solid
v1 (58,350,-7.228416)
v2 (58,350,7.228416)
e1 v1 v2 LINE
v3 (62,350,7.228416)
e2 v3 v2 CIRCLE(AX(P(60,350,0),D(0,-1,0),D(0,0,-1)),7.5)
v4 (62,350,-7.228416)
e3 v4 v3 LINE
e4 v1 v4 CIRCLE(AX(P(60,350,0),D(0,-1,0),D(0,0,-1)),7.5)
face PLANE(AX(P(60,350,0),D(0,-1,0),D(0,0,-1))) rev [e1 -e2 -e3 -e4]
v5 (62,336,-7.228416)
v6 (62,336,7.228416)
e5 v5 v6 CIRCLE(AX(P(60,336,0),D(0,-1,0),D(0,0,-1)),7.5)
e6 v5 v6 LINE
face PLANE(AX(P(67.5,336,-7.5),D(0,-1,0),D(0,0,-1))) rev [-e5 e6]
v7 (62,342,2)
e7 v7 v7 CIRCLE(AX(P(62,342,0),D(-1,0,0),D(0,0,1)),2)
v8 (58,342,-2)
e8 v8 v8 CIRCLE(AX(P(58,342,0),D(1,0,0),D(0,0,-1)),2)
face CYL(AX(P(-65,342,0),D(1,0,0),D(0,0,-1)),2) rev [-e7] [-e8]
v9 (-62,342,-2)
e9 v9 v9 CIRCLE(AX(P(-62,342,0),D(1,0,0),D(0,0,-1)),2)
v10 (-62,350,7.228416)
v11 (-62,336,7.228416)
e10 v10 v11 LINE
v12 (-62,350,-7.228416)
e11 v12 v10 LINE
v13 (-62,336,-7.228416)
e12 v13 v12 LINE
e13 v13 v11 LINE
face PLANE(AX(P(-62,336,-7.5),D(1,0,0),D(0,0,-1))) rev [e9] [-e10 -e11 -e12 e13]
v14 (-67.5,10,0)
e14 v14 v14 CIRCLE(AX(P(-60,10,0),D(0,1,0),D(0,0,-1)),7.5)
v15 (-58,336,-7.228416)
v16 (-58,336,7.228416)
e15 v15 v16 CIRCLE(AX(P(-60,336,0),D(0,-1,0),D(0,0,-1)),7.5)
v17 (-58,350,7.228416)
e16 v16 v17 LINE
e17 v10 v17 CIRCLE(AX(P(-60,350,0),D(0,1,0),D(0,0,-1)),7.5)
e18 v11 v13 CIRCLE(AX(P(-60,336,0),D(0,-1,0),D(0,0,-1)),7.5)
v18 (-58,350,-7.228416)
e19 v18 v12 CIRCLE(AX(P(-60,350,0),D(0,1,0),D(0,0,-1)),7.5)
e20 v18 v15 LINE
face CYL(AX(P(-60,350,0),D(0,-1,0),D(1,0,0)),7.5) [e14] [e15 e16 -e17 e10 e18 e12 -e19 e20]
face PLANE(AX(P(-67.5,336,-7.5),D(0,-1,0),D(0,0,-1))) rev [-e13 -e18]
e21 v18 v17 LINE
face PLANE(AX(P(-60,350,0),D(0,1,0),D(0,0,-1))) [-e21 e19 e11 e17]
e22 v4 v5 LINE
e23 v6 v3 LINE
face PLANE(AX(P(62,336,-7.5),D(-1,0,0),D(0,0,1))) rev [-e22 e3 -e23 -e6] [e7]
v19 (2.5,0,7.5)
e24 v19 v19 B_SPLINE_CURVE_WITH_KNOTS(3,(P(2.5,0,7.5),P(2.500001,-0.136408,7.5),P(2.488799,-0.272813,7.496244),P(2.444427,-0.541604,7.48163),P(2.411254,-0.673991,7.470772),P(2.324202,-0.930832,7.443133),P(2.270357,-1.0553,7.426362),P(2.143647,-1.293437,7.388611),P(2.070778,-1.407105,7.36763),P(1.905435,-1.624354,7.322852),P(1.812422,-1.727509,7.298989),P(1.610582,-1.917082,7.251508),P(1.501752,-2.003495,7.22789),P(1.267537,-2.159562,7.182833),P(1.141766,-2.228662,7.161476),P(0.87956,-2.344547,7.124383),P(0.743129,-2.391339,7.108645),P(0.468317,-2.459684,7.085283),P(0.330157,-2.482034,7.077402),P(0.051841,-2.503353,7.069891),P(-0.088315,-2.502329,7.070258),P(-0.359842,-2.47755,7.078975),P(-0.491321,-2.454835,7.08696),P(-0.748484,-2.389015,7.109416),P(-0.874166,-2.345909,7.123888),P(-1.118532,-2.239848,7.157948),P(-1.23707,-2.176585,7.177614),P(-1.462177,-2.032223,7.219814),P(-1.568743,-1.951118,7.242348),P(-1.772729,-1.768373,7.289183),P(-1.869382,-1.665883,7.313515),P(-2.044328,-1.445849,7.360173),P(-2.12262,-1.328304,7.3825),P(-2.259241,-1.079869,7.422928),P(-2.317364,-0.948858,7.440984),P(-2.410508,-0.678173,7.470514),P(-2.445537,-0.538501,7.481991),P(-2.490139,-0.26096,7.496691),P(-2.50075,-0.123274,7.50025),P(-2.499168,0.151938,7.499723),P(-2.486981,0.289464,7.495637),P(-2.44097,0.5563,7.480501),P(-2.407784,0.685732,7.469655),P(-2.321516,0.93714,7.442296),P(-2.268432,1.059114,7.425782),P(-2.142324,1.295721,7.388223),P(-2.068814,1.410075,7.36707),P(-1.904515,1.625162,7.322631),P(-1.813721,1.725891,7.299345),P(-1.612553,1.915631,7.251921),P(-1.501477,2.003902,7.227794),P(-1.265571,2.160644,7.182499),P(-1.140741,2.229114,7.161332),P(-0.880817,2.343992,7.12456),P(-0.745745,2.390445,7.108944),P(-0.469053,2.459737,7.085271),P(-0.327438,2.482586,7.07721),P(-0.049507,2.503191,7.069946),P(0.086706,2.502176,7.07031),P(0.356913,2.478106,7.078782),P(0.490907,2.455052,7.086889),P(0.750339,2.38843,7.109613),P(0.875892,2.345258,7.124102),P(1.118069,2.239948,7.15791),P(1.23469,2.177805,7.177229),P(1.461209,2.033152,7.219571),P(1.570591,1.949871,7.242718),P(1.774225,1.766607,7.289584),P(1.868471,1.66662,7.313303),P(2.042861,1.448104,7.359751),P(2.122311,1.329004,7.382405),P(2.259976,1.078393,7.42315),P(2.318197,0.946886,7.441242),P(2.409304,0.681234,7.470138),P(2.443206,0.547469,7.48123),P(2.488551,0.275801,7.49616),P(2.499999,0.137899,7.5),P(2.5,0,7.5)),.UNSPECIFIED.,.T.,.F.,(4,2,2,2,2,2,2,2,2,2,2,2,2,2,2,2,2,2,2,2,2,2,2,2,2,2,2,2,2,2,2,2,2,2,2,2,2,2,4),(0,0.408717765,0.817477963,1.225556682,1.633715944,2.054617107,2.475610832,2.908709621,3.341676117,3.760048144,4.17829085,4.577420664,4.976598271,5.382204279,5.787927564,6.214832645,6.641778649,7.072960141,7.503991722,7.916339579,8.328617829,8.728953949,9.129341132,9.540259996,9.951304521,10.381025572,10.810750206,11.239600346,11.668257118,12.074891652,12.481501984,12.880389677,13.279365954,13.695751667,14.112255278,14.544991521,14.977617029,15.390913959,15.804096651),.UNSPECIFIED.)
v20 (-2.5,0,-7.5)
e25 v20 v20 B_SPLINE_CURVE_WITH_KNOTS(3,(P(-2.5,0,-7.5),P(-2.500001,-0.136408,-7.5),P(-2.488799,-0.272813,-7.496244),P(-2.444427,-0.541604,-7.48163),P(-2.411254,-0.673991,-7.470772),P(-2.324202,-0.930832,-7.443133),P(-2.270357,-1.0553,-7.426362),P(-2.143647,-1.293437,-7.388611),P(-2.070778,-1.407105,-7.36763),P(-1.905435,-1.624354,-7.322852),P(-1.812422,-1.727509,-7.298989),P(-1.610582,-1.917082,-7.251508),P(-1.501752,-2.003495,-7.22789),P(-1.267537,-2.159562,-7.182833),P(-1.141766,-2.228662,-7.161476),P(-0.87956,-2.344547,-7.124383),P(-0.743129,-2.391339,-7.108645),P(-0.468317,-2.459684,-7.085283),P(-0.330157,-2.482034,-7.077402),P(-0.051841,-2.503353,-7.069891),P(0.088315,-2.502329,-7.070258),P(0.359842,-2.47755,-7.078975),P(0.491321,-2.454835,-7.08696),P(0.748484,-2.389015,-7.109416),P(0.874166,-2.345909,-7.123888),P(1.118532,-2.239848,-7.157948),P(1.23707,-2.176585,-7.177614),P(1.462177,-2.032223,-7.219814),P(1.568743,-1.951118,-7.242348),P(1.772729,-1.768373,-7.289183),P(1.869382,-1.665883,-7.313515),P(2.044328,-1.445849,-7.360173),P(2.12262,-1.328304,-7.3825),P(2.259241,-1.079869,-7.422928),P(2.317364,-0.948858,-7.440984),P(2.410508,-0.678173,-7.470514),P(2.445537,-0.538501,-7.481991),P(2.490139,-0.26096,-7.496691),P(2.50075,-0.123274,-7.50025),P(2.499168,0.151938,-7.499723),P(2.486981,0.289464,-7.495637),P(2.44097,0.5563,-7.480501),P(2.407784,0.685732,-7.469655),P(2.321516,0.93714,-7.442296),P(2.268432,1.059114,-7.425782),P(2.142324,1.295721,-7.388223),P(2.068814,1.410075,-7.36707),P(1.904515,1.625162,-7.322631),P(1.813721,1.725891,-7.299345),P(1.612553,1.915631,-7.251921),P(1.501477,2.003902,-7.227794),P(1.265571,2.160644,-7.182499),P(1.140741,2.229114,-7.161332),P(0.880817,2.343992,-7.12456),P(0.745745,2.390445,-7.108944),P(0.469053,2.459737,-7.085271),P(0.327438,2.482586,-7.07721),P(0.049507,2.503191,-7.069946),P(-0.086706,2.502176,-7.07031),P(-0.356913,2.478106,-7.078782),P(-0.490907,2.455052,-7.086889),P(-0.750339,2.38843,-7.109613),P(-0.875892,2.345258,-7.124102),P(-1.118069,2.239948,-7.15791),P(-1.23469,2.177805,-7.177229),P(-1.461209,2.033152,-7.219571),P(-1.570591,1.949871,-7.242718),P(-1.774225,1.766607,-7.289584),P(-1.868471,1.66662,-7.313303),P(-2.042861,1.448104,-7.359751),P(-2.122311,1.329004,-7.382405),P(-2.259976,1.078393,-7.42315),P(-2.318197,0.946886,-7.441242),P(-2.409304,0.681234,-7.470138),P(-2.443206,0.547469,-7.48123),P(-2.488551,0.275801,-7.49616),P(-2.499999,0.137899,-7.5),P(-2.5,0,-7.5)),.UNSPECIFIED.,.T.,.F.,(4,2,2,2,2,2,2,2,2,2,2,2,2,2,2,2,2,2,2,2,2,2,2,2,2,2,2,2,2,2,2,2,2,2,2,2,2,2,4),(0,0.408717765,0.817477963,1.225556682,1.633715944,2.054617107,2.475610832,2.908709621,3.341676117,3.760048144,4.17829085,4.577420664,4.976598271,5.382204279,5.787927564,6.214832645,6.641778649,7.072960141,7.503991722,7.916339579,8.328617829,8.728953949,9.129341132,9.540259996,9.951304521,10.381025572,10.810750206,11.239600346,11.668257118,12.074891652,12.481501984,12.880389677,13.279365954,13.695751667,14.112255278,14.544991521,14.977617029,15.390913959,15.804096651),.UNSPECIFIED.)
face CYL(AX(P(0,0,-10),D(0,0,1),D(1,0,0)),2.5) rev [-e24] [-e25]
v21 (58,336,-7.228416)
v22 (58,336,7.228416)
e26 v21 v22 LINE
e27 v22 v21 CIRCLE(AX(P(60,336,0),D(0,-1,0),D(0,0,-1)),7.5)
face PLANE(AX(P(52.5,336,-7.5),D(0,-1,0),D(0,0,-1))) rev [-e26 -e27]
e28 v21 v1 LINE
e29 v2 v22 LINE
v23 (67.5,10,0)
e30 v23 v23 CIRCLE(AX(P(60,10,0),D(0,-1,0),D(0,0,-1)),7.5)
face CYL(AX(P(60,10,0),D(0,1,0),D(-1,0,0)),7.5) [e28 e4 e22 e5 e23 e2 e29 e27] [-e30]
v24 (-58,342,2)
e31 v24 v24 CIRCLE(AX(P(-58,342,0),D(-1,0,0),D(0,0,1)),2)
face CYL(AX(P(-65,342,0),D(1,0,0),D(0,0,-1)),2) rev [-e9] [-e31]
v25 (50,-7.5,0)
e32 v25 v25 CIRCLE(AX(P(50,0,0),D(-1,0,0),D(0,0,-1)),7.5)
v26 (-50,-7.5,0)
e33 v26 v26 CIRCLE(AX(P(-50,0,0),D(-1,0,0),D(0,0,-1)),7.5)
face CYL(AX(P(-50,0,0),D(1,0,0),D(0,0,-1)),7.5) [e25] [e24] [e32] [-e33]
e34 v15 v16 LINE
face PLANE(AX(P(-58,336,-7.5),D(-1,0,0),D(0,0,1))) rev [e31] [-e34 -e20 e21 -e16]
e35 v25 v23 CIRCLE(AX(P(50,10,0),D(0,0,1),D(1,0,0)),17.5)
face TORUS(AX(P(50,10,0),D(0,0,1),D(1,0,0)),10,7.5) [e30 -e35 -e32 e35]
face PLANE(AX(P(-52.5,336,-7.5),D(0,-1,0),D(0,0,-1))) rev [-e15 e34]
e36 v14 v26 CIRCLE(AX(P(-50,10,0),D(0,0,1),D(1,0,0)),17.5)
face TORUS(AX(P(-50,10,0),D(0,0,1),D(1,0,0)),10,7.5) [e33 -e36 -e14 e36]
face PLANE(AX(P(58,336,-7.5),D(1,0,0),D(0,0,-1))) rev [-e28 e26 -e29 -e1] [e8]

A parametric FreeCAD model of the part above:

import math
import FreeCAD as App
import Part
import Sketcher

V = App.Vector
Q = App.Units.Quantity


def add_polygon(sketch, points):
    """Adds a closed chain of lines whose ends are joined by coincident constraints."""
    first, n = sketch.GeometryCount, len(points)
    for a, b in zip(points, points[1:] + points[:1]):
        sketch.addGeometry(Part.LineSegment(App.Vector(*a, 0), App.Vector(*b, 0)), False)
    for i in range(n):
        sketch.addConstraint(Sketcher.Constraint("Coincident", first + i, 2, first + (i + 1) % n, 1))

doc = App.newDocument("Part")
params = doc.addObject("Spreadsheet::Sheet", "Params")
for row, (alias, value) in enumerate([
    ("sketch1_diameter", "15 mm"),
    ("sketch2_radius", "10 mm"),
    ("sketch2_width", "100 mm"),
    ("sketch2_height", "340 mm"),
    ("sketch3_height", "14 mm"),
    ("sketch3_width", "5.5 mm"),
    ("pocket1_length", "15 mm"),
    ("sketch4_diameter", "4 mm"),
    ("pocket2_length", "130 mm"),
    ("sketch5_diameter", "5 mm"),
    ("pocket3_length", "20 mm"),
], start=1):
    params.set(f"A{row}", alias)
    params.set(f"B{row}", "=" + value)
    params.setAlias(f"B{row}", alias)

body = doc.addObject("PartDesign::Body", "Body")

sketch1 = body.newObject("Sketcher::SketchObject", "Sketch")
sketch1.AttachmentSupport = (doc.getObject("XZ_Plane"), [""])
sketch1.MapMode = "FlatFace"
sketch1.AttachmentOffset = App.Placement(V(0, 0, -350), App.Rotation())
sketch1.addGeometry(Part.Circle(V(-60, 0, 0), V(0, 0, 1), 8), False)
sketch1.addConstraint([
    Sketcher.Constraint("PointOnObject", 0, 3, -1),
    Sketcher.Constraint("Diameter", 0, Q("15 mm")),
    Sketcher.Constraint("DistanceX", 0, 3, -1, 1, Q("60 mm")),
])
sketch1.setExpression("Constraints[1]", "Params.sketch1_diameter")

sketch2 = body.newObject("Sketcher::SketchObject", "Sketch001")
sketch2.AttachmentSupport = (doc.getObject("XY_Plane"), [""])
sketch2.MapMode = "FlatFace"
sketch2.addGeometry([
    Part.LineSegment(V(-60, 350, 0), V(-60, 10, 0)),
    Part.ArcOfCircle(Part.Circle(V(-50, 10, 0), V(0, 0, 1), 10), math.radians(180), math.radians(270)),
    Part.LineSegment(V(-50, 0, 0), V(50, 0, 0)),
    Part.ArcOfCircle(Part.Circle(V(50, 10, 0), V(0, 0, 1), 10), math.radians(-90), math.radians(0)),
    Part.LineSegment(V(60, 10, 0), V(60, 350, 0)),
], False)
sketch2.addConstraint([
    Sketcher.Constraint("Tangent", 0, 2, 1, 1),
    Sketcher.Constraint("Tangent", 1, 2, 2, 1),
    Sketcher.Constraint("Tangent", 2, 2, 3, 1),
    Sketcher.Constraint("Tangent", 3, 2, 4, 1),
    Sketcher.Constraint("Vertical", 0),
    Sketcher.Constraint("Horizontal", 2),
    Sketcher.Constraint("Vertical", 4),
    Sketcher.Constraint("Equal", 1, 3),
    Sketcher.Constraint("Symmetric", 1, 2, 2, 2, -1, 1),
    Sketcher.Constraint("Horizontal", 0, 1, 4, 2),
    Sketcher.Constraint("Radius", 1, Q("10 mm")),
    Sketcher.Constraint("DistanceX", 2, 1, 2, 2, Q("100 mm")),
    Sketcher.Constraint("DistanceY", 0, 2, 0, 1, Q("340 mm")),
])
sketch2.setExpression("Constraints[10]", "Params.sketch2_radius")
sketch2.setExpression("Constraints[11]", "Params.sketch2_width")
sketch2.setExpression("Constraints[12]", "Params.sketch2_height")
doc.recompute()

additivepipe = body.newObject("PartDesign::AdditivePipe", "AdditivePipe")
additivepipe.Profile = sketch1
additivepipe.Spine = (sketch2, ["Edge1", "Edge2", "Edge3", "Edge4", "Edge5"])

sketch3 = body.newObject("Sketcher::SketchObject", "Sketch002")
sketch3.AttachmentSupport = (doc.getObject("XY_Plane"), [""])
sketch3.MapMode = "FlatFace"
add_polygon(sketch3, [(-68, 350), (-68, 336), (-62, 336), (-62, 350)])
add_polygon(sketch3, [(-58, 350), (-58, 336), (-52, 336), (-52, 350)])
add_polygon(sketch3, [(52, 350), (52, 336), (58, 336), (58, 350)])
add_polygon(sketch3, [(62, 350), (62, 336), (68, 336), (68, 350)])
sketch3.addConstraint([
    Sketcher.Constraint("Vertical", 0),
    Sketcher.Constraint("Horizontal", 1),
    Sketcher.Constraint("Vertical", 2),
    Sketcher.Constraint("Horizontal", 3),
    Sketcher.Constraint("Vertical", 4),
    Sketcher.Constraint("Horizontal", 5),
    Sketcher.Constraint("Vertical", 6),
    Sketcher.Constraint("Horizontal", 7),
    Sketcher.Constraint("Vertical", 8),
    Sketcher.Constraint("Horizontal", 9),
    Sketcher.Constraint("Vertical", 10),
    Sketcher.Constraint("Horizontal", 11),
    Sketcher.Constraint("Vertical", 12),
    Sketcher.Constraint("Horizontal", 13),
    Sketcher.Constraint("Vertical", 14),
    Sketcher.Constraint("Horizontal", 15),
    Sketcher.Constraint("Symmetric", 5, 2, 8, 2, -2),
    Sketcher.Constraint("Symmetric", 7, 2, 10, 2, -2),
    Sketcher.Constraint("Symmetric", 1, 2, 12, 2, -2),
    Sketcher.Constraint("Symmetric", 3, 2, 14, 2, -2),
    Sketcher.Constraint("Horizontal", 1, 2, 4, 2),
    Sketcher.Constraint("Horizontal", 3, 2, 6, 2),
    Sketcher.Constraint("Equal", 3, 5),
    Sketcher.Constraint("DistanceY", 0, 2, 0, 1, Q("14 mm")),
    Sketcher.Constraint("DistanceX", 1, 1, 1, 2, Q("5.5 mm")),
    Sketcher.Constraint("DistanceY", -1, 1, 0, 2, Q("336 mm")),
    Sketcher.Constraint("DistanceX", 1, 2, -1, 1, Q("62 mm")),
    Sketcher.Constraint("DistanceX", 4, 2, -1, 1, Q("58 mm")),
])
sketch3.setExpression("Constraints[39]", "Params.sketch3_height")
sketch3.setExpression("Constraints[40]", "Params.sketch3_width")
pocket1 = body.newObject("PartDesign::Pocket", "Pocket")
pocket1.Profile = sketch3
pocket1.setExpression("Length", "Params.pocket1_length")
pocket1.Midplane = True

sketch4 = body.newObject("Sketcher::SketchObject", "Sketch003")
sketch4.AttachmentSupport = (doc.getObject("YZ_Plane"), [""])
sketch4.MapMode = "FlatFace"
sketch4.addGeometry(Part.Circle(V(342, 0, 0), V(0, 0, 1), 2), False)
sketch4.addConstraint([
    Sketcher.Constraint("PointOnObject", 0, 3, -1),
    Sketcher.Constraint("Diameter", 0, Q("4 mm")),
    Sketcher.Constraint("DistanceX", -1, 1, 0, 3, Q("342 mm")),
])
sketch4.setExpression("Constraints[1]", "Params.sketch4_diameter")
pocket2 = body.newObject("PartDesign::Pocket", "Pocket001")
pocket2.Profile = sketch4
pocket2.setExpression("Length", "Params.pocket2_length")
pocket2.Midplane = True

sketch5 = body.newObject("Sketcher::SketchObject", "Sketch004")
sketch5.AttachmentSupport = (doc.getObject("XY_Plane"), [""])
sketch5.MapMode = "FlatFace"
sketch5.addGeometry(Part.Circle(V(0, 0, 0), V(0, 0, 1), 2.5), False)
sketch5.addConstraint([
    Sketcher.Constraint("Coincident", 0, 3, -1, 1),
    Sketcher.Constraint("Diameter", 0, Q("5 mm")),
])
sketch5.setExpression("Constraints[1]", "Params.sketch5_diameter")
pocket3 = body.newObject("PartDesign::Pocket", "Pocket002")
pocket3.Profile = sketch5
pocket3.setExpression("Length", "Params.pocket3_length")
pocket3.Midplane = True

doc.recompute()
